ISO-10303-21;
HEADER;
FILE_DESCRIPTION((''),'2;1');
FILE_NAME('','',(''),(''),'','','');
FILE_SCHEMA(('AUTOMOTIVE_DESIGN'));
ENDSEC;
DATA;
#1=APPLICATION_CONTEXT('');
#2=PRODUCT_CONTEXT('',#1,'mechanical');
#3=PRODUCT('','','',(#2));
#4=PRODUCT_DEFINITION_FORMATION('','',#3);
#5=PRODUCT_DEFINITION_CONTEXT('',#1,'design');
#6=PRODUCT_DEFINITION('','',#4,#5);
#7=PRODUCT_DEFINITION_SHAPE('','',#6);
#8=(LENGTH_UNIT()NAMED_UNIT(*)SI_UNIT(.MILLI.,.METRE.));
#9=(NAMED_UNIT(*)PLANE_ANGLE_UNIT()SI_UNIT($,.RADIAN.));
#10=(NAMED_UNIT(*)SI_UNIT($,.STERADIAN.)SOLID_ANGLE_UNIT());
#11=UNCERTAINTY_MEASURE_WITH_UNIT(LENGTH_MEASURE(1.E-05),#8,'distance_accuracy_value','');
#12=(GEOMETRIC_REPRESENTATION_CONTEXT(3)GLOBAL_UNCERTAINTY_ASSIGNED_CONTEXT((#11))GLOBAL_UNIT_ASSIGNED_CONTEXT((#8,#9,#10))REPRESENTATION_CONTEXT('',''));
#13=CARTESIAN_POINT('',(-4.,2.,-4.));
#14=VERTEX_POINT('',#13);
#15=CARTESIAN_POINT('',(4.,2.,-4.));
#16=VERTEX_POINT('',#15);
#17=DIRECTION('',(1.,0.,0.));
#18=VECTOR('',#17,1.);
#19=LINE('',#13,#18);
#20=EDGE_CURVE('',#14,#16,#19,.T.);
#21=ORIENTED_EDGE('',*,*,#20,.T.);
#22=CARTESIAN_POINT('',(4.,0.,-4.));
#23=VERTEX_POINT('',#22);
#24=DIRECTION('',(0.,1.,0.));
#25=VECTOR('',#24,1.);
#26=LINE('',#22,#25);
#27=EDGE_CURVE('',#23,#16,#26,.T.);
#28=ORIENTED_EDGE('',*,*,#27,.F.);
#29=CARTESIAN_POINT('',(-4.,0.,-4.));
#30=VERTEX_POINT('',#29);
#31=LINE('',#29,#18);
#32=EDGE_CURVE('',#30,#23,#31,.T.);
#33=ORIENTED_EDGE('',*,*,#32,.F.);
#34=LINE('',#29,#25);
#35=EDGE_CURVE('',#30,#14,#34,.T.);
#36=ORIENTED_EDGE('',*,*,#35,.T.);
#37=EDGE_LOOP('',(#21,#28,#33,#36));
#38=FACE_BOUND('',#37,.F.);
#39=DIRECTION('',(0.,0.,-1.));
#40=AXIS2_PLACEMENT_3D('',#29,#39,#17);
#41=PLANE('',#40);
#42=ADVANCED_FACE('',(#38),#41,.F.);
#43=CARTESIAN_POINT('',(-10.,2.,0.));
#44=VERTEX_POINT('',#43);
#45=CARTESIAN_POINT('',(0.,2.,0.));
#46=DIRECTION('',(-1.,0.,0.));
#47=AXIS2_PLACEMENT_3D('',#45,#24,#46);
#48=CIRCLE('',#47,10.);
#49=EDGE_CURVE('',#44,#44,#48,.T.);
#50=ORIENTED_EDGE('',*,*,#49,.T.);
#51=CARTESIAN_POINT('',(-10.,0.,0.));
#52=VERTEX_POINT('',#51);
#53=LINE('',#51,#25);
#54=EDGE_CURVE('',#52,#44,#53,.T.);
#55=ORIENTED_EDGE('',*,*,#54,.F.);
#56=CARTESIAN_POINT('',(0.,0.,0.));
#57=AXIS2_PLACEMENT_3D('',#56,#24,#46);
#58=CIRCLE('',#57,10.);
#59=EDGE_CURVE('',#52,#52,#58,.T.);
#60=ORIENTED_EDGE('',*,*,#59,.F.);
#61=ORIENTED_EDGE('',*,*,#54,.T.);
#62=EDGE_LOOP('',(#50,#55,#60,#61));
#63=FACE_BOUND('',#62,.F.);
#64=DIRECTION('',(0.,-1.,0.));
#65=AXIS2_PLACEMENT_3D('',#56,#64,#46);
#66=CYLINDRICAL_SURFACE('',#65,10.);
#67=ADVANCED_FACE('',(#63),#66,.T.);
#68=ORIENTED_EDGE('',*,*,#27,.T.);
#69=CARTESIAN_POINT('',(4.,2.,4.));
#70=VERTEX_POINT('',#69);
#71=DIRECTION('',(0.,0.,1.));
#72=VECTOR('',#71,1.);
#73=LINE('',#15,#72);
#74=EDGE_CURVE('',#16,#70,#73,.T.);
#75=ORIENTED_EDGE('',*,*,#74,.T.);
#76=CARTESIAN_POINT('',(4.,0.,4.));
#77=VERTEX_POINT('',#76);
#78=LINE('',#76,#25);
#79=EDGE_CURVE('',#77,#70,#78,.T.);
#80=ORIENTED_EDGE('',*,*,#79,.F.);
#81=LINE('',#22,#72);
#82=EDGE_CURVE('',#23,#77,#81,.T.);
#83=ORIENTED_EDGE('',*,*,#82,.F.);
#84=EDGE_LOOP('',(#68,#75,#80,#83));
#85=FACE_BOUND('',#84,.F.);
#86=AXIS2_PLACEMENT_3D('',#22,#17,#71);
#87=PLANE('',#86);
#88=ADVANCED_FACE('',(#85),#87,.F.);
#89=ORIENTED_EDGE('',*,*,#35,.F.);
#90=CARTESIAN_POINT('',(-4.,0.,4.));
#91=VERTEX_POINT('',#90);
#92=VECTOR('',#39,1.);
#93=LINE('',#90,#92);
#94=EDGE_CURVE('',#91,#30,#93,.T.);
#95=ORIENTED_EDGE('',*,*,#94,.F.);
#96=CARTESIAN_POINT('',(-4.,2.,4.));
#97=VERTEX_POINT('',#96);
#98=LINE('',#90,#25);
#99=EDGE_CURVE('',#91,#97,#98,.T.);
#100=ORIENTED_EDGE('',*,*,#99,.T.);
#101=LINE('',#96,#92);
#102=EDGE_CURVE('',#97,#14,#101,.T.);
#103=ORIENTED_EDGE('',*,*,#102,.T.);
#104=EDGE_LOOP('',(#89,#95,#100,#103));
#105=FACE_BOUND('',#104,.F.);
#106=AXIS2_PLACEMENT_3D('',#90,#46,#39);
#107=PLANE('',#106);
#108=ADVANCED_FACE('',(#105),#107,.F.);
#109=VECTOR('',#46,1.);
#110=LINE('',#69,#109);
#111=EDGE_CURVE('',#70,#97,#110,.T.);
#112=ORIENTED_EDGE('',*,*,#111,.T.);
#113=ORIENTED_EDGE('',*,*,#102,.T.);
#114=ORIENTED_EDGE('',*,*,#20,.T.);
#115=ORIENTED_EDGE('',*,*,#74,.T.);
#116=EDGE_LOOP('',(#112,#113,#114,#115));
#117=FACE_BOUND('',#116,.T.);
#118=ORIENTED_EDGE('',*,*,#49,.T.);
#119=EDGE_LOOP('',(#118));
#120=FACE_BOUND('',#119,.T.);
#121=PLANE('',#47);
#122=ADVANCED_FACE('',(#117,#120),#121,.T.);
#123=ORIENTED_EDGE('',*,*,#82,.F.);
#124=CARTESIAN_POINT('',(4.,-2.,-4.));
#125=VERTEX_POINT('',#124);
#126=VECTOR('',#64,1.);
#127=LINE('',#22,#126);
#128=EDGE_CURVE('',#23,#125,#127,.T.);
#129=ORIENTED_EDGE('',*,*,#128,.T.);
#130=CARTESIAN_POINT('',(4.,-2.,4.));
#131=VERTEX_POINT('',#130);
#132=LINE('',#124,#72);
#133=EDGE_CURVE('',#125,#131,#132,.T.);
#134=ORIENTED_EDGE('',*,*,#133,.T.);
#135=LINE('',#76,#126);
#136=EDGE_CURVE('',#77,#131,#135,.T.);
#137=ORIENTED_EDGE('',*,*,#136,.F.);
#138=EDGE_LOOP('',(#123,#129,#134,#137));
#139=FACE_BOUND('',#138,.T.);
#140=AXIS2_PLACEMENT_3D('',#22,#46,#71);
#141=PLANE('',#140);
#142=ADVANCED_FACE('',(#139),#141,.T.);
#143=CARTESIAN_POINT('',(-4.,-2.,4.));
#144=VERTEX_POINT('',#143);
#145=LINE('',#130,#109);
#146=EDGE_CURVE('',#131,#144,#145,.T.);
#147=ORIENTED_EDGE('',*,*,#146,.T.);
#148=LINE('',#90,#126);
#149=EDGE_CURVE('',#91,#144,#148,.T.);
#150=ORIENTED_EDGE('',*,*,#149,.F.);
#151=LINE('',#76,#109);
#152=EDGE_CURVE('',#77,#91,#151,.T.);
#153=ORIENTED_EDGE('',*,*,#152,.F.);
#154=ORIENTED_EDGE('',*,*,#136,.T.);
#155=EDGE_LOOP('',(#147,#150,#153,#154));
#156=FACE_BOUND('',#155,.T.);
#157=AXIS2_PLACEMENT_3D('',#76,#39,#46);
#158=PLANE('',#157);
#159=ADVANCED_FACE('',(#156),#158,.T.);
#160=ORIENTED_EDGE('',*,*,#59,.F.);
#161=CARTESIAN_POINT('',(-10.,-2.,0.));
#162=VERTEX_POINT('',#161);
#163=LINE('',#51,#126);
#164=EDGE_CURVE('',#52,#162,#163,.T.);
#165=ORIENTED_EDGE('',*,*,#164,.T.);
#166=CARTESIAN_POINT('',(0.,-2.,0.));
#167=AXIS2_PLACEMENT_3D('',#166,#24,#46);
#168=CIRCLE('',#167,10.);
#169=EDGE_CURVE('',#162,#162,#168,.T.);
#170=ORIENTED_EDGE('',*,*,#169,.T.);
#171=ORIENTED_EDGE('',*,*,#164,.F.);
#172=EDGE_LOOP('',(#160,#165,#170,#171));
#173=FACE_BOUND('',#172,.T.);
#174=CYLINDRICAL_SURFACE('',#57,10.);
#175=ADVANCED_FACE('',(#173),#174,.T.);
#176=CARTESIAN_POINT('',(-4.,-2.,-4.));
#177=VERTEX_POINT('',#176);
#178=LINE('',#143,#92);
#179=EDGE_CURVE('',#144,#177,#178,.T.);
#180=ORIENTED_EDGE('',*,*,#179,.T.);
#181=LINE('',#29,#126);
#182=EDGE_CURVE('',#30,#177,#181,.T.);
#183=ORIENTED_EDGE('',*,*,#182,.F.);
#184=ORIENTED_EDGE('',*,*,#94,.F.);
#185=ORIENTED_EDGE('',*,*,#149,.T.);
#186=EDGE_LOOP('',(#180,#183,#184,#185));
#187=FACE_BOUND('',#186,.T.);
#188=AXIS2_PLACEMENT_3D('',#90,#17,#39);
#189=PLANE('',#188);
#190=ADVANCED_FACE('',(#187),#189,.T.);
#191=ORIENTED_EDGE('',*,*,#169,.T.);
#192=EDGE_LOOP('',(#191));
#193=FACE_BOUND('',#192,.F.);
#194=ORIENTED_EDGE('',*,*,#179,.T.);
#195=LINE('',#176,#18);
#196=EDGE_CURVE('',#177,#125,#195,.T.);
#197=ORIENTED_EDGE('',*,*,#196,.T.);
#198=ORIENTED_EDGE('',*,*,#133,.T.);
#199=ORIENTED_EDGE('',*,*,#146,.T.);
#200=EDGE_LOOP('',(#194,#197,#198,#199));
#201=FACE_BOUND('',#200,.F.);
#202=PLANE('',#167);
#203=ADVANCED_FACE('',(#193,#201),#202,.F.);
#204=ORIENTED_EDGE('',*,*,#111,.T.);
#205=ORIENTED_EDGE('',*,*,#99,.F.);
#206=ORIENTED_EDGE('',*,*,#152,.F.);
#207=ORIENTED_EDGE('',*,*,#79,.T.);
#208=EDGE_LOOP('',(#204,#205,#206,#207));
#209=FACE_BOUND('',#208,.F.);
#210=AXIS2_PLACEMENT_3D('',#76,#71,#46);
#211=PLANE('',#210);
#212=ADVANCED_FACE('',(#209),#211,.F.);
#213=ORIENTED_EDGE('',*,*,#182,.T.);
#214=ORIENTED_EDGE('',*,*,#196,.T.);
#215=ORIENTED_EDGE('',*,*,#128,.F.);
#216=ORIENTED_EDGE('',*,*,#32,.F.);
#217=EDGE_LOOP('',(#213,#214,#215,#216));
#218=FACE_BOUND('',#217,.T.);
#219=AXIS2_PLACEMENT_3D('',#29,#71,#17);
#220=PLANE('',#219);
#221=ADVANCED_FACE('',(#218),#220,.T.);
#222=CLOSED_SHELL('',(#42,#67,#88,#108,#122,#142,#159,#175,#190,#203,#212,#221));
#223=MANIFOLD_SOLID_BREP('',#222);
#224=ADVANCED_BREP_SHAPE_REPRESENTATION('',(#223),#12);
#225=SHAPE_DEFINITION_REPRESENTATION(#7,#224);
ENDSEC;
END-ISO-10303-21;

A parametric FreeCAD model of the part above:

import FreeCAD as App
import Part
import Sketcher
from FreeCAD import Vector
Q = App.Units.Quantity


def add_polygon(sketch, points):
    """Adds a closed chain of lines whose ends are joined by coincident constraints."""
    first, n = sketch.GeometryCount, len(points)
    for a, b in zip(points, points[1:] + points[:1]):
        sketch.addGeometry(Part.LineSegment(App.Vector(*a, 0), App.Vector(*b, 0)), False)
    for i in range(n):
        sketch.addConstraint(Sketcher.Constraint("Coincident", first + i, 2, first + (i + 1) % n, 1))

doc = App.newDocument("Part")
body = doc.addObject("PartDesign::Body", "Body")

# Sketch on XZ plane
sketch1 = body.newObject("Sketcher::SketchObject", "Sketch")
sketch1.AttachmentSupport = (doc.getObject("XZ_Plane"), [""])
sketch1.MapMode = "FlatFace"
sketch1.addGeometry(Part.Circle(Vector(0, 0, 0), Vector(0, 0, 1), 10), False)  # 0
add_polygon(sketch1, [(-4, 4), (-4, -4), (4, -4), (4, 4)])  # lines 1-4
sketch1.addConstraint(Sketcher.Constraint("Vertical", 1))
sketch1.addConstraint(Sketcher.Constraint("Horizontal", 2))
sketch1.addConstraint(Sketcher.Constraint("Vertical", 3))
sketch1.addConstraint(Sketcher.Constraint("Horizontal", 4))
sketch1.addConstraint(Sketcher.Constraint("Coincident", 0, 3, -1, 1))
sketch1.addConstraint(Sketcher.Constraint("Symmetric", 1, 2, 3, 2, -1, 1))
sketch1.addConstraint(Sketcher.Constraint("Equal", 4, 1))
sketch1.addConstraint(Sketcher.Constraint("Diameter", 0, Q("20 mm")))
sketch1.addConstraint(Sketcher.Constraint("DistanceX", 2, 1, 2, 2, Q("8 mm")))
pad1 = body.newObject("PartDesign::Pad", "Pad")
pad1.Profile = sketch1
pad1.Length = 4
pad1.Midplane = True

doc.recompute()
